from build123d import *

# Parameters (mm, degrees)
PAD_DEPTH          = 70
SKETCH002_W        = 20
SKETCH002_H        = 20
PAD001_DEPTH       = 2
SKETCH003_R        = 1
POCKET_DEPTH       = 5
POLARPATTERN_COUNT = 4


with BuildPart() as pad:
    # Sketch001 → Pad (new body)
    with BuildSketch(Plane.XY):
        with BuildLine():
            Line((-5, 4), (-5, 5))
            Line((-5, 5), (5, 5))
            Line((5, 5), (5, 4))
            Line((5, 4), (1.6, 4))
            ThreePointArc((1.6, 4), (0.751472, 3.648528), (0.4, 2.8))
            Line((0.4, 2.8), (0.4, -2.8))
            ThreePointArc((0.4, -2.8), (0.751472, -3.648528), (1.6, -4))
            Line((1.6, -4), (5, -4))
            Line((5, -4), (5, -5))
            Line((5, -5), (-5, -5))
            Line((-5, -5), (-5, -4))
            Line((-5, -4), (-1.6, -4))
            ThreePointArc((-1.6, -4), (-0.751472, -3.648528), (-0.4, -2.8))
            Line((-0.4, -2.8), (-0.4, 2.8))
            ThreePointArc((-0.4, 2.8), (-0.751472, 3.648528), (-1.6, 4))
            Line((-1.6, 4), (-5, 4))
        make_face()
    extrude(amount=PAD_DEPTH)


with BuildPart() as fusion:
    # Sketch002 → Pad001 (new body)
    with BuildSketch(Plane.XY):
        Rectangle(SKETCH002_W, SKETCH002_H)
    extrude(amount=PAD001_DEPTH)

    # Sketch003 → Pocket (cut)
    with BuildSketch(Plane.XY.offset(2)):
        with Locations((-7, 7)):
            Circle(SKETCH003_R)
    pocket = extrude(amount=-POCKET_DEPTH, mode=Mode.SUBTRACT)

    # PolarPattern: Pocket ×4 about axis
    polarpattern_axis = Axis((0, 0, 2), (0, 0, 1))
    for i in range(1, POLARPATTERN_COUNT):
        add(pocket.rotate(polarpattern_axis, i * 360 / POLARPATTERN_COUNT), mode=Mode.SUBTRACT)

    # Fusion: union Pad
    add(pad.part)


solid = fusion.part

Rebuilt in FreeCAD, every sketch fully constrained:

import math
import FreeCAD as App
import Part
import Sketcher

V = App.Vector

doc = App.newDocument("Part")
params = doc.addObject("Spreadsheet::Sheet", "Params")
for row, (alias, value) in enumerate([
    ("sketch1_radius", "1.2 mm"),
    ("sketch1_width", "10 mm"),
    ("sketch1_height", "1 mm"),
    ("sketch1_width2", "3.4 mm"),
    ("sketch1_height2", "5.6 mm"),
    ("pad1_length", "70 mm"),
    ("sketch2_width", "20 mm"),
    ("pad2_length", "2 mm"),
    ("sketch3_diameter", "2 mm"),
    ("pocket1_length", "5 mm"),
], start=1):
    params.set(f"A{row}", alias)
    params.set(f"B{row}", "=" + value)
    params.setAlias(f"B{row}", alias)

body = doc.addObject("PartDesign::Body", "Body")

# Sketch on XY plane
sketch1 = body.newObject("Sketcher::SketchObject", "Sketch")
sketch1.AttachmentSupport = (doc.getObject("XY_Plane"), [""])
sketch1.MapMode = "FlatFace"
sketch1.addGeometry([
    Part.LineSegment(V(-5, 5, 0), V(-5, 4, 0)),  # 0
    Part.LineSegment(V(-5, 4, 0), V(-1.6, 4, 0)),  # 1
    Part.ArcOfCircle(Part.Circle(V(-1.6, 2.8, 0), V(0, 0, 1), 1.2), math.radians(0), math.radians(90)),  # 2
    Part.LineSegment(V(-0.4, 2.8, 0), V(-0.4, -2.8, 0)),  # 3
    Part.ArcOfCircle(Part.Circle(V(-1.6, -2.8, 0), V(0, 0, 1), 1.2), math.radians(-90), math.radians(0)),  # 4
    Part.LineSegment(V(-1.6, -4, 0), V(-5, -4, 0)),  # 5
    Part.LineSegment(V(-5, -4, 0), V(-5, -5, 0)),  # 6
    Part.LineSegment(V(-5, -5, 0), V(5, -5, 0)),  # 7
    Part.LineSegment(V(5, -5, 0), V(5, -4, 0)),  # 8
    Part.LineSegment(V(5, -4, 0), V(1.6, -4, 0)),  # 9
    Part.ArcOfCircle(Part.Circle(V(1.6, -2.8, 0), V(0, 0, 1), 1.2), math.radians(-180), math.radians(-90)),  # 10
    Part.LineSegment(V(0.4, -2.8, 0), V(0.4, 2.8, 0)),  # 11
    Part.ArcOfCircle(Part.Circle(V(1.6, 2.8, 0), V(0, 0, 1), 1.2), math.radians(90), math.radians(180)),  # 12
    Part.LineSegment(V(1.6, 4, 0), V(5, 4, 0)),  # 13
    Part.LineSegment(V(5, 4, 0), V(5, 5, 0)),  # 14
    Part.LineSegment(V(5, 5, 0), V(-5, 5, 0)),  # 15
], False)
sketch1.addConstraint([
    Sketcher.Constraint("Coincident", 0, 2, 1, 1),
    Sketcher.Constraint("Tangent", 1, 2, 2, 2),
    Sketcher.Constraint("Tangent", 2, 1, 3, 1),
    Sketcher.Constraint("Tangent", 3, 2, 4, 2),
    Sketcher.Constraint("Tangent", 4, 1, 5, 1),
    Sketcher.Constraint("Coincident", 5, 2, 6, 1),
    Sketcher.Constraint("Coincident", 6, 2, 7, 1),
    Sketcher.Constraint("Coincident", 7, 2, 8, 1),
    Sketcher.Constraint("Coincident", 8, 2, 9, 1),
    Sketcher.Constraint("Tangent", 9, 2, 10, 2),
    Sketcher.Constraint("Tangent", 10, 1, 11, 1),
    Sketcher.Constraint("Tangent", 11, 2, 12, 2),
    Sketcher.Constraint("Tangent", 12, 1, 13, 1),
    Sketcher.Constraint("Coincident", 13, 2, 14, 1),
    Sketcher.Constraint("Coincident", 14, 2, 15, 1),
    Sketcher.Constraint("Coincident", 15, 2, 0, 1),
    Sketcher.Constraint("Vertical", 0),
    Sketcher.Constraint("Horizontal", 1),
    Sketcher.Constraint("Vertical", 3),
    Sketcher.Constraint("Horizontal", 5),
    Sketcher.Constraint("Vertical", 6),
    Sketcher.Constraint("Horizontal", 7),
    Sketcher.Constraint("Vertical", 8),
    Sketcher.Constraint("Horizontal", 9),
    Sketcher.Constraint("Vertical", 11),
    Sketcher.Constraint("Horizontal", 13),
    Sketcher.Constraint("Vertical", 14),
    Sketcher.Constraint("Horizontal", 15),
    Sketcher.Constraint("Equal", 2, 4),
    Sketcher.Constraint("Equal", 4, 10),
    Sketcher.Constraint("Equal", 10, 12),
    Sketcher.Constraint("Symmetric", 2, 3, 10, 3, -1, 1),
    Sketcher.Constraint("Symmetric", 5, 2, 13, 2, -1, 1),
    Sketcher.Constraint("Symmetric", 7, 2, 15, 2, -1, 1),
    Sketcher.Constraint("Symmetric", 5, 2, 8, 2, -2),
    Sketcher.Constraint("Radius", 2, 1.2),
    Sketcher.Constraint("DistanceX", 7, 1, 7, 2, 10.0),
    Sketcher.Constraint("DistanceY", 0, 2, 0, 1, 1.0),
    Sketcher.Constraint("DistanceX", 1, 1, 1, 2, 3.4),
    Sketcher.Constraint("DistanceY", 3, 2, 3, 1, 5.6),
])
sketch1.setExpression("Constraints[35]", "Params.sketch1_radius")
sketch1.setExpression("Constraints[36]", "Params.sketch1_width")
sketch1.setExpression("Constraints[37]", "Params.sketch1_height")
sketch1.setExpression("Constraints[38]", "Params.sketch1_width2")
sketch1.setExpression("Constraints[39]", "Params.sketch1_height2")
pad1 = body.newObject("PartDesign::Pad", "Pad")
pad1.Profile = sketch1
pad1.setExpression("Length", "Params.pad1_length")
body2 = doc.addObject("PartDesign::Body", "Body001")

# Sketch on XY plane
sketch2 = body2.newObject("Sketcher::SketchObject", "Sketch001")
sketch2.AttachmentSupport = (doc.getObject("XY_Plane001"), [""])
sketch2.MapMode = "FlatFace"
sketch2.addGeometry([
    Part.LineSegment(V(-10, 10, 0), V(-10, -10, 0)),
    Part.LineSegment(V(-10, -10, 0), V(10, -10, 0)),
    Part.LineSegment(V(10, -10, 0), V(10, 10, 0)),
    Part.LineSegment(V(10, 10, 0), V(-10, 10, 0)),
], False)
sketch2.addConstraint([
    Sketcher.Constraint("Coincident", 0, 2, 1, 1),
    Sketcher.Constraint("Coincident", 1, 2, 2, 1),
    Sketcher.Constraint("Coincident", 2, 2, 3, 1),
    Sketcher.Constraint("Coincident", 3, 2, 0, 1),
    Sketcher.Constraint("Vertical", 0),
    Sketcher.Constraint("Horizontal", 1),
    Sketcher.Constraint("Vertical", 2),
    Sketcher.Constraint("Horizontal", 3),
    Sketcher.Constraint("Symmetric", 0, 2, 2, 2, -1, 1),
    Sketcher.Constraint("Equal", 3, 0),
    Sketcher.Constraint("DistanceX", 1, 1, 1, 2, 20.0),
])
sketch2.setExpression("Constraints[10]", "Params.sketch2_width")
pad2 = body2.newObject("PartDesign::Pad", "Pad001")
pad2.Profile = sketch2
pad2.setExpression("Length", "Params.pad2_length")

# Sketch on XY plane
sketch3 = body2.newObject("Sketcher::SketchObject", "Sketch002")
sketch3.AttachmentSupport = (doc.getObject("XY_Plane001"), [""])
sketch3.MapMode = "FlatFace"
sketch3.AttachmentOffset = App.Placement(V(0, 0, 2), App.Rotation())
sketch3.addGeometry(Part.Circle(V(-7, 7, 0), V(0, 0, 1), 1), False)
sketch3.addConstraint([
    Sketcher.Constraint("Diameter", 0, 2.0),
    Sketcher.Constraint("DistanceX", 0, 3, -1, 1, 7.0),
    Sketcher.Constraint("DistanceY", -1, 1, 0, 3, 7.0),
])
sketch3.setExpression("Constraints[0]", "Params.sketch3_diameter")
pocket1 = body2.newObject("PartDesign::Pocket", "Pocket")
pocket1.Profile = sketch3
pocket1.setExpression("Length", "Params.pocket1_length")
doc.recompute()

polarpattern = body2.newObject("PartDesign::PolarPattern", "PolarPattern")
polarpattern.Originals = [pocket1]
polarpattern.Axis = (doc.getObject("Z_Axis001"), [""])
polarpattern.Angle = 360
polarpattern.Occurrences = 4
body2.Tip = polarpattern
doc.recompute()

boolean = body2.newObject("PartDesign::Boolean", "Boolean")
boolean.Type = "Fuse"
boolean.addObjects([body])

doc.recompute()
